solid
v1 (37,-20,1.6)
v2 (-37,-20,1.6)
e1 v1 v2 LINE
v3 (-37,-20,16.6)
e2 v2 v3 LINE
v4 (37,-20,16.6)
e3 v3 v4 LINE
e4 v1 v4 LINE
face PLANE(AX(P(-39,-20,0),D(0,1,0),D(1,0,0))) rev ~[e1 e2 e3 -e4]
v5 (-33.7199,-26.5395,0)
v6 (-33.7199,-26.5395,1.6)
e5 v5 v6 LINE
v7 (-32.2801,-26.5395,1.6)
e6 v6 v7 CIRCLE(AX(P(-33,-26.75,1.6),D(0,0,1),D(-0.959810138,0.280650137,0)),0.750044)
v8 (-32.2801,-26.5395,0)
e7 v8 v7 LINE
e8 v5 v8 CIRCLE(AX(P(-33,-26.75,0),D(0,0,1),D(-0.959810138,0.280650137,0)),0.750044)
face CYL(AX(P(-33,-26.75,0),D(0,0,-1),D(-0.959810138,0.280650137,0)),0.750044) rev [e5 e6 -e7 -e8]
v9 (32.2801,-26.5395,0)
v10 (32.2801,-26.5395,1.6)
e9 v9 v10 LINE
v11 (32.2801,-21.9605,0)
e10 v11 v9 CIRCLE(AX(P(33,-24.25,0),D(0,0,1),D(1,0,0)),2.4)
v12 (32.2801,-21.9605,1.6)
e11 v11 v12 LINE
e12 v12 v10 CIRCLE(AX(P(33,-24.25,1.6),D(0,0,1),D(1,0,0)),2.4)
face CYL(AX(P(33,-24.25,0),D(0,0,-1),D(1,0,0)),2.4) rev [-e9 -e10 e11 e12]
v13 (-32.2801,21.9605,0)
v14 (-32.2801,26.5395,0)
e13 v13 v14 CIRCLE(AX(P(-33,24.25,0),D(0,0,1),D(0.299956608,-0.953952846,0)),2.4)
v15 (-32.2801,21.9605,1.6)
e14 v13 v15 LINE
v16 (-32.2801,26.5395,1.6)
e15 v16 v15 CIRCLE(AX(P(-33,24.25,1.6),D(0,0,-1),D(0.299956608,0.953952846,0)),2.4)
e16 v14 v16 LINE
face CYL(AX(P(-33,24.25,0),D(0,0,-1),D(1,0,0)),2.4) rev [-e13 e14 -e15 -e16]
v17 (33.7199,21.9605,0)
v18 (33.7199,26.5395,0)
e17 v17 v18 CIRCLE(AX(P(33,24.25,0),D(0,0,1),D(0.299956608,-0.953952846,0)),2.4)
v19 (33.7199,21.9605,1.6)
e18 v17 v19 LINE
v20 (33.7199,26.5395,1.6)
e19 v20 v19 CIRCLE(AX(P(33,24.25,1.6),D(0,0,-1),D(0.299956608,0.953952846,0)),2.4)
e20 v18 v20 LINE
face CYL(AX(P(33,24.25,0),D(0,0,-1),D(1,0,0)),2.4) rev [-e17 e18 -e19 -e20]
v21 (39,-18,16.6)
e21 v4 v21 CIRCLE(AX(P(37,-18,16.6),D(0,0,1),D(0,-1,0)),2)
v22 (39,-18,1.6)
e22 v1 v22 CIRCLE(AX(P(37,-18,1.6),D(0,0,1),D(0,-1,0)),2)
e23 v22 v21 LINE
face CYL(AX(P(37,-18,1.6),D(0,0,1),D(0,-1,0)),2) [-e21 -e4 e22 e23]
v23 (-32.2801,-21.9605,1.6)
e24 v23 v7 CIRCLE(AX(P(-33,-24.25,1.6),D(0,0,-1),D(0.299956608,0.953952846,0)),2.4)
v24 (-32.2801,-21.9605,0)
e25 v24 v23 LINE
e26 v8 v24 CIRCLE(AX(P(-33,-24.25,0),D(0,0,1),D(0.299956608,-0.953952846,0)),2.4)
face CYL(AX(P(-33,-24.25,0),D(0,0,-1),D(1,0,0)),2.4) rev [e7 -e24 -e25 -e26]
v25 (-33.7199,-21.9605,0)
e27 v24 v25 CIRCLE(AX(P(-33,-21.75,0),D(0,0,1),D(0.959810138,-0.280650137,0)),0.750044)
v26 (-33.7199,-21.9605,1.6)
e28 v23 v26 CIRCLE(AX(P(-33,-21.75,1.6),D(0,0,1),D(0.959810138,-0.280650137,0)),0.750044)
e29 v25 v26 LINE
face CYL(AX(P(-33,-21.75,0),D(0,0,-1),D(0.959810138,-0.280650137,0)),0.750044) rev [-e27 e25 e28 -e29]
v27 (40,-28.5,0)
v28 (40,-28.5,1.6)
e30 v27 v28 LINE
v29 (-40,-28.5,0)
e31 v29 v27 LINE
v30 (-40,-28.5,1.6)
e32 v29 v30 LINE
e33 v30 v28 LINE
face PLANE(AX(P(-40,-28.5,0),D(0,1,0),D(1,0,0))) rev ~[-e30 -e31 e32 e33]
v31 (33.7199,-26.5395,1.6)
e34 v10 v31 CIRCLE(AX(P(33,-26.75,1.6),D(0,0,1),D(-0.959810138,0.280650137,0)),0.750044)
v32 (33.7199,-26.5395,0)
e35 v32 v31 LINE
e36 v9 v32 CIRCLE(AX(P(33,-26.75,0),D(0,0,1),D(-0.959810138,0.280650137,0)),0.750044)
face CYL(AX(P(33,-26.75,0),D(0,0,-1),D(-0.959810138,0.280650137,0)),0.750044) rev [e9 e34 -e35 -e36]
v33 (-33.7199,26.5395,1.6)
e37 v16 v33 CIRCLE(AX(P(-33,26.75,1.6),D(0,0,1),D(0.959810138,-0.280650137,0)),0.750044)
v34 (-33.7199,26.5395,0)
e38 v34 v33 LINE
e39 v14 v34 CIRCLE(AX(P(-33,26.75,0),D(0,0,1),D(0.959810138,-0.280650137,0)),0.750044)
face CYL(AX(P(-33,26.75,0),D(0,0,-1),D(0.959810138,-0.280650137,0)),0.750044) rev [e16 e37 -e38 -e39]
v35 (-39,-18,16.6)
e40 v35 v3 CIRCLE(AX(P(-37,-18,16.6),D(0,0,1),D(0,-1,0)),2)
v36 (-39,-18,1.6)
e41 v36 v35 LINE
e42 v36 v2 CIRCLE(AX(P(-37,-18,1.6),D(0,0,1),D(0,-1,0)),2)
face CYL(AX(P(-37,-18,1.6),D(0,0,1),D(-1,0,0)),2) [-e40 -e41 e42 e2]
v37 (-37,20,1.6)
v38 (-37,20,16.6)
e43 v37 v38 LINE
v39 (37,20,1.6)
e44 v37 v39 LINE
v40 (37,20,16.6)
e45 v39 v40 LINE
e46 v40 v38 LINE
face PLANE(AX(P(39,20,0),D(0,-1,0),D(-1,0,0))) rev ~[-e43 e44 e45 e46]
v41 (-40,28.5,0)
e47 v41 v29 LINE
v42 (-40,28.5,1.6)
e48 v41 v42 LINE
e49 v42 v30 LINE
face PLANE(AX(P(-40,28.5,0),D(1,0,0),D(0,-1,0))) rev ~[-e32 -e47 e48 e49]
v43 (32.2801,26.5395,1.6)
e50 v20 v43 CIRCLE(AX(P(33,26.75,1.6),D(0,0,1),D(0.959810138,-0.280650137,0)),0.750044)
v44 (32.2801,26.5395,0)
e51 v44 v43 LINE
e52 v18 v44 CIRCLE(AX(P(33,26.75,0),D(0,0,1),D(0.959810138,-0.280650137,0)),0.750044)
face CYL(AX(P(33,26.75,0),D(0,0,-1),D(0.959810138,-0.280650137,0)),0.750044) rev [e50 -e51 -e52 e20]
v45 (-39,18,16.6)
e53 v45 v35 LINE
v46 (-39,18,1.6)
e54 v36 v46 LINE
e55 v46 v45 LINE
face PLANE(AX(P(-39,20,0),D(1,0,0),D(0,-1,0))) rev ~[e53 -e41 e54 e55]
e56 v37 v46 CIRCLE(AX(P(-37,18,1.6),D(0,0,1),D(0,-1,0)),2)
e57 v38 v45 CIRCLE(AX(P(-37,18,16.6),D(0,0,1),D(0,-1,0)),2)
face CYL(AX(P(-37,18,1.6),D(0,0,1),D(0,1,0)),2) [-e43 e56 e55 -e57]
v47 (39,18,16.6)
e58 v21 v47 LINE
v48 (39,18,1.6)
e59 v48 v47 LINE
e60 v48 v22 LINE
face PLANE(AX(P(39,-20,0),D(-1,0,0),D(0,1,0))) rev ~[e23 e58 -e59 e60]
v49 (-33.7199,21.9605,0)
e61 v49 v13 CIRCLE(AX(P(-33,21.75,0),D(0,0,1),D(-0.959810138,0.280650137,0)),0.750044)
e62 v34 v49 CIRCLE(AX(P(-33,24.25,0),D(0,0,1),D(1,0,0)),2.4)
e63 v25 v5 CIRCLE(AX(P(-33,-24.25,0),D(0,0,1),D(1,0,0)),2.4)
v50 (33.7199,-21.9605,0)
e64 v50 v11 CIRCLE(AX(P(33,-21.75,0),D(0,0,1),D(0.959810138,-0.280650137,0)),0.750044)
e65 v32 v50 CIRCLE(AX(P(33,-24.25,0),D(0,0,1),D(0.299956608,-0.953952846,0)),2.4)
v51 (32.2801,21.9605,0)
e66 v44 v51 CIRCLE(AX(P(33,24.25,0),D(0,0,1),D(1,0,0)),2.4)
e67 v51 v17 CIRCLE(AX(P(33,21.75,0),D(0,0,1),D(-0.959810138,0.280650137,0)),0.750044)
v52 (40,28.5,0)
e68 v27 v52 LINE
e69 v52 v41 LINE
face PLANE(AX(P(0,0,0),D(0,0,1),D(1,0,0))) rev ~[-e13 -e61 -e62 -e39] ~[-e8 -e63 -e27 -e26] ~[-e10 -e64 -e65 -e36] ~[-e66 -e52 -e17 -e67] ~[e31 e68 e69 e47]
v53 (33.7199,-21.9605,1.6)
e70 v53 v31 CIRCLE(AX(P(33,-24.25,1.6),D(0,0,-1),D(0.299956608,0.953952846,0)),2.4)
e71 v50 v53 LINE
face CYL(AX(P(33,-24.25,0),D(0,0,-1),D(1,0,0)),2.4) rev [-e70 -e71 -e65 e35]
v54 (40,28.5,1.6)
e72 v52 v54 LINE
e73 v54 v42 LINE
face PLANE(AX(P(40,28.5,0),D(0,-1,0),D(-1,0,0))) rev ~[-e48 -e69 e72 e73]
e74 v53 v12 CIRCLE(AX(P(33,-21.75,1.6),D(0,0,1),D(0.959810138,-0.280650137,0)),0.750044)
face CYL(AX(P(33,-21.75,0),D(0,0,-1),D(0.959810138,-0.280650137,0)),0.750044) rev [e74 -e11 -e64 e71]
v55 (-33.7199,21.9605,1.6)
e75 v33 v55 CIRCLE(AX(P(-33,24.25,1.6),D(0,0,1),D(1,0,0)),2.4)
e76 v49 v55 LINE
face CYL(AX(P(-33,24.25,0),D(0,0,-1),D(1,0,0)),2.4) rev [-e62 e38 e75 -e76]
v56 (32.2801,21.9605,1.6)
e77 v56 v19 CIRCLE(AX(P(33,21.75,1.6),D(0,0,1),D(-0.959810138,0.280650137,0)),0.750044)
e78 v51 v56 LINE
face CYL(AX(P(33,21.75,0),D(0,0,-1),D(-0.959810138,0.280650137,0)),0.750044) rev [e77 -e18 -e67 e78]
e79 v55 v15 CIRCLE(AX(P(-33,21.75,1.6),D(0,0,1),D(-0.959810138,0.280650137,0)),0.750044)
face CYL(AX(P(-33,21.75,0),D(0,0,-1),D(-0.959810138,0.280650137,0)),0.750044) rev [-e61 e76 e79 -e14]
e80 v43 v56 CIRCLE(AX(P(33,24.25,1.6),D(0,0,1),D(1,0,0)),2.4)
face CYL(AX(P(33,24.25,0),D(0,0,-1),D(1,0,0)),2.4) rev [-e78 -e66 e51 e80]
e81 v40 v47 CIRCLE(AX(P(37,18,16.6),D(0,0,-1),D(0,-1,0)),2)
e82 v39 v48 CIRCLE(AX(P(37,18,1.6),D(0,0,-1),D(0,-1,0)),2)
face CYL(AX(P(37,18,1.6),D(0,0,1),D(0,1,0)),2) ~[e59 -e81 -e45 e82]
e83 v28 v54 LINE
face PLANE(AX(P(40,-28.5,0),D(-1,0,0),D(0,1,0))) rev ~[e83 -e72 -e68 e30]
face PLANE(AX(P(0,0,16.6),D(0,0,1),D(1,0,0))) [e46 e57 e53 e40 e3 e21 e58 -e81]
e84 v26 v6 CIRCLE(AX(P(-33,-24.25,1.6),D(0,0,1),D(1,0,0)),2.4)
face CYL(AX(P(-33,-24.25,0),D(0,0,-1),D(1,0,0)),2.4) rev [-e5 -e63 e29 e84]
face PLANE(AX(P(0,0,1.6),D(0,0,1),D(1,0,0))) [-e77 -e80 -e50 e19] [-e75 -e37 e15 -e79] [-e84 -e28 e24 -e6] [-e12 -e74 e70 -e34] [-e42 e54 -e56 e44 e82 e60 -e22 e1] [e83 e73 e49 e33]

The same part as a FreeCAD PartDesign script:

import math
import FreeCAD as App
import Part
import Sketcher

V = App.Vector


def edges_at(feature, points):
    """Names of the edges that pass closest to the given points."""
    edges = feature.Shape.Edges
    near = lambda p: min(range(len(edges)), key=lambda i: edges[i].distToShape(Part.Vertex(*p))[0])
    return sorted({f"Edge{near(p) + 1}" for p in points})


def add_polygon(sketch, points):
    """Adds a closed chain of lines whose ends are joined by coincident constraints."""
    first, n = sketch.GeometryCount, len(points)
    for a, b in zip(points, points[1:] + points[:1]):
        sketch.addGeometry(Part.LineSegment(App.Vector(*a, 0), App.Vector(*b, 0)), False)
    for i in range(n):
        sketch.addConstraint(Sketcher.Constraint("Coincident", first + i, 2, first + (i + 1) % n, 1))

doc = App.newDocument("Part")
params = doc.addObject("Spreadsheet::Sheet", "Params")
for row, (alias, value) in enumerate([
    ("sketch1_radius", "2.4 mm"),
    ("sketch1_width", "80 mm"),
    ("sketch1_height", "57 mm"),
    ("sketch1_radius2", "0.75 mm"),
    ("pad1_length", "1.6 mm"),
    ("sketch2_width", "78 mm"),
    ("sketch2_height", "40 mm"),
    ("pad2_length", "16.6 mm"),
    ("fillet_radius", "2 mm"),
], start=1):
    params.set(f"A{row}", alias)
    params.set(f"B{row}", "=" + value)
    params.setAlias(f"B{row}", alias)

body = doc.addObject("PartDesign::Body", "Body")

sketch1 = body.newObject("Sketcher::SketchObject", "Sketch")
sketch1.AttachmentSupport = (doc.getObject("XY_Plane"), [""])
sketch1.MapMode = "FlatFace"
add_polygon(sketch1, [(40, -28.5), (40, 28.5), (-40, 28.5), (-40, -28.5)])
sketch1.addGeometry(Part.ArcOfCircle(Part.Circle(V(-33, -24.2, 0), V(0, 0, 1), 2.4), math.radians(-73), math.radians(73)), False)
sketch1.addGeometry(Part.ArcOfCircle(Part.Circle(V(-33, -26.8, 0), V(0, 0, 1), 0.8), math.radians(164), math.radians(376)), False)
sketch1.addGeometry(Part.ArcOfCircle(Part.Circle(V(-33, -24.2, 0), V(0, 0, 1), 2.4), math.radians(107), math.radians(253)), False)
sketch1.addGeometry(Part.ArcOfCircle(Part.Circle(V(-33, -21.8, 0), V(0, 0, 1), 0.8), math.radians(-16), math.radians(196)), False)
sketch1.addGeometry(Part.ArcOfCircle(Part.Circle(V(33, -24.2, 0), V(0, 0, 1), 2.4), math.radians(-73), math.radians(73)), False)
sketch1.addGeometry(Part.ArcOfCircle(Part.Circle(V(33, -26.8, 0), V(0, 0, 1), 0.8), math.radians(164), math.radians(376)), False)
sketch1.addGeometry(Part.ArcOfCircle(Part.Circle(V(33, -24.2, 0), V(0, 0, 1), 2.4), math.radians(107), math.radians(253)), False)
sketch1.addGeometry(Part.ArcOfCircle(Part.Circle(V(33, -21.8, 0), V(0, 0, 1), 0.8), math.radians(-16), math.radians(196)), False)
sketch1.addGeometry(Part.ArcOfCircle(Part.Circle(V(-33, 24.2, 0), V(0, 0, 1), 2.4), math.radians(-73), math.radians(73)), False)
sketch1.addGeometry(Part.ArcOfCircle(Part.Circle(V(-33, 21.8, 0), V(0, 0, 1), 0.8), math.radians(164), math.radians(376)), False)
sketch1.addGeometry(Part.ArcOfCircle(Part.Circle(V(-33, 24.2, 0), V(0, 0, 1), 2.4), math.radians(107), math.radians(253)), False)
sketch1.addGeometry(Part.ArcOfCircle(Part.Circle(V(-33, 26.8, 0), V(0, 0, 1), 0.8), math.radians(-16), math.radians(196)), False)
sketch1.addGeometry(Part.ArcOfCircle(Part.Circle(V(33, 24.2, 0), V(0, 0, 1), 2.4), math.radians(-73), math.radians(73)), False)
sketch1.addGeometry(Part.ArcOfCircle(Part.Circle(V(33, 21.8, 0), V(0, 0, 1), 0.8), math.radians(164), math.radians(376)), False)
sketch1.addGeometry(Part.ArcOfCircle(Part.Circle(V(33, 24.2, 0), V(0, 0, 1), 2.4), math.radians(107), math.radians(253)), False)
sketch1.addGeometry(Part.ArcOfCircle(Part.Circle(V(33, 26.8, 0), V(0, 0, 1), 0.8), math.radians(-16), math.radians(196)), False)
sketch1.addConstraint(Sketcher.Constraint("Coincident", 4, 1, 5, 2))
sketch1.addConstraint(Sketcher.Constraint("Coincident", 5, 1, 6, 2))
sketch1.addConstraint(Sketcher.Constraint("Coincident", 6, 1, 7, 2))
sketch1.addConstraint(Sketcher.Constraint("Coincident", 7, 1, 4, 2))
sketch1.addConstraint(Sketcher.Constraint("Coincident", 8, 1, 9, 2))
sketch1.addConstraint(Sketcher.Constraint("Coincident", 9, 1, 10, 2))
sketch1.addConstraint(Sketcher.Constraint("Coincident", 10, 1, 11, 2))
sketch1.addConstraint(Sketcher.Constraint("Coincident", 11, 1, 8, 2))
sketch1.addConstraint(Sketcher.Constraint("Coincident", 12, 1, 13, 2))
sketch1.addConstraint(Sketcher.Constraint("Coincident", 13, 1, 14, 2))
sketch1.addConstraint(Sketcher.Constraint("Coincident", 14, 1, 15, 2))
sketch1.addConstraint(Sketcher.Constraint("Coincident", 15, 1, 12, 2))
sketch1.addConstraint(Sketcher.Constraint("Coincident", 16, 1, 17, 2))
sketch1.addConstraint(Sketcher.Constraint("Coincident", 17, 1, 18, 2))
sketch1.addConstraint(Sketcher.Constraint("Coincident", 18, 1, 19, 2))
sketch1.addConstraint(Sketcher.Constraint("Coincident", 19, 1, 16, 2))
sketch1.addConstraint(Sketcher.Constraint("Vertical", 0))
sketch1.addConstraint(Sketcher.Constraint("Horizontal", 1))
sketch1.addConstraint(Sketcher.Constraint("Vertical", 2))
sketch1.addConstraint(Sketcher.Constraint("Horizontal", 3))
sketch1.addConstraint(Sketcher.Constraint("Coincident", 6, 3, 4, 3))
sketch1.addConstraint(Sketcher.Constraint("Coincident", 10, 3, 8, 3))
sketch1.addConstraint(Sketcher.Constraint("Coincident", 14, 3, 12, 3))
sketch1.addConstraint(Sketcher.Constraint("Coincident", 18, 3, 16, 3))
sketch1.addConstraint(Sketcher.Constraint("Equal", 4, 6))
sketch1.addConstraint(Sketcher.Constraint("Equal", 5, 7))
sketch1.addConstraint(Sketcher.Constraint("Equal", 6, 8))
sketch1.addConstraint(Sketcher.Constraint("Equal", 7, 9))
sketch1.addConstraint(Sketcher.Constraint("Equal", 8, 10))
sketch1.addConstraint(Sketcher.Constraint("Equal", 9, 11))
sketch1.addConstraint(Sketcher.Constraint("Equal", 10, 12))
sketch1.addConstraint(Sketcher.Constraint("Equal", 11, 13))
sketch1.addConstraint(Sketcher.Constraint("Equal", 12, 14))
sketch1.addConstraint(Sketcher.Constraint("Equal", 13, 15))
sketch1.addConstraint(Sketcher.Constraint("Equal", 14, 16))
sketch1.addConstraint(Sketcher.Constraint("Equal", 15, 17))
sketch1.addConstraint(Sketcher.Constraint("Equal", 16, 18))
sketch1.addConstraint(Sketcher.Constraint("Equal", 17, 19))
sketch1.addConstraint(Sketcher.Constraint("Symmetric", 8, 3, 12, 3, -1, 1))
sketch1.addConstraint(Sketcher.Constraint("Symmetric", 11, 3, 13, 3, -1, 1))
sketch1.addConstraint(Sketcher.Constraint("Symmetric", 9, 3, 15, 3, -1, 1))
sketch1.addConstraint(Sketcher.Constraint("Symmetric", 4, 3, 16, 3, -1, 1))
sketch1.addConstraint(Sketcher.Constraint("Symmetric", 7, 3, 17, 3, -1, 1))
sketch1.addConstraint(Sketcher.Constraint("Symmetric", 5, 3, 19, 3, -1, 1))
sketch1.addConstraint(Sketcher.Constraint("Symmetric", 0, 2, 2, 2, -1, 1))
sketch1.addConstraint(Sketcher.Constraint("Symmetric", 4, 3, 8, 3, -2))
sketch1.addConstraint(Sketcher.Constraint("Symmetric", 5, 3, 9, 3, -2))
sketch1.addConstraint(Sketcher.Constraint("Symmetric", 7, 3, 11, 3, -2))
sketch1.addConstraint(Sketcher.Constraint("Horizontal", 4, 1, 5, 1))
sketch1.addConstraint(Sketcher.Constraint("Horizontal", 6, 1, 7, 1))
sketch1.addConstraint(Sketcher.Constraint("Vertical", 5, 1, 6, 1))
sketch1.addConstraint(Sketcher.Constraint("Radius", 4, 2.4))
sketch1.addConstraint(Sketcher.Constraint("DistanceX", 1, 2, 1, 1, 80.0))
sketch1.addConstraint(Sketcher.Constraint("DistanceY", 0, 1, 0, 2, 57.0))
sketch1.addConstraint(Sketcher.Constraint("Radius", 5, 0.75))
sketch1.addConstraint(Sketcher.Constraint("DistanceX", 4, 3, 8, 3, 66.0))
sketch1.addConstraint(Sketcher.Constraint("DistanceY", 4, 3, 12, 3, 48.5))
sketch1.addConstraint(Sketcher.Constraint("DistanceY", 5, 3, 7, 3, 5.0))
sketch1.setExpression("Constraints[55]", "Params.sketch1_radius")
sketch1.setExpression("Constraints[56]", "Params.sketch1_width")
sketch1.setExpression("Constraints[57]", "Params.sketch1_height")
sketch1.setExpression("Constraints[58]", "Params.sketch1_radius2")
pad1 = body.newObject("PartDesign::Pad", "Pad")
pad1.Profile = sketch1
pad1.setExpression("Length", "Params.pad1_length")

sketch2 = body.newObject("Sketcher::SketchObject", "Sketch001")
sketch2.AttachmentSupport = (doc.getObject("XY_Plane"), [""])
sketch2.MapMode = "FlatFace"
add_polygon(sketch2, [(39, -20), (39, 20), (-39, 20), (-39, -20)])
sketch2.addConstraint(Sketcher.Constraint("Vertical", 0))
sketch2.addConstraint(Sketcher.Constraint("Horizontal", 1))
sketch2.addConstraint(Sketcher.Constraint("Vertical", 2))
sketch2.addConstraint(Sketcher.Constraint("Horizontal", 3))
sketch2.addConstraint(Sketcher.Constraint("Symmetric", 0, 2, 2, 2, -1, 1))
sketch2.addConstraint(Sketcher.Constraint("DistanceX", 1, 2, 1, 1, 78.0))
sketch2.addConstraint(Sketcher.Constraint("DistanceY", 0, 1, 0, 2, 40.0))
sketch2.setExpression("Constraints[9]", "Params.sketch2_width")
sketch2.setExpression("Constraints[10]", "Params.sketch2_height")
pad2 = body.newObject("PartDesign::Pad", "Pad001")
pad2.Profile = sketch2
pad2.setExpression("Length", "Params.pad2_length")
doc.recompute()

fillet = body.newObject("PartDesign::Fillet", "Fillet")
fillet.Base = (pad2, edges_at(pad2, [
    (39, -20, 9.1),
    (39, 20, 9.1),
    (-39, -20, 9.1),
    (-39, 20, 9.1),
]))
fillet.setExpression("Radius", "Params.fillet_radius")

doc.recompute()
